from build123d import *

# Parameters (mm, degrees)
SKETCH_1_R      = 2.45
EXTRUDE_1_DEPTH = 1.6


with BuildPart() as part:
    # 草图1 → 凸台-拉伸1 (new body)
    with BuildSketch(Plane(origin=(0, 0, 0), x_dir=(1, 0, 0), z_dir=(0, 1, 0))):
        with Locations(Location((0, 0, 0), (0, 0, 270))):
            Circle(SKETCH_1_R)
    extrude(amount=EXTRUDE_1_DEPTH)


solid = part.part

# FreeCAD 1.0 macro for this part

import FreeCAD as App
import Part
import Sketcher
Q = App.Units.Quantity

doc = App.newDocument("Part")
params = doc.addObject("Spreadsheet::Sheet", "Params")
for row, (alias, value) in enumerate([
    ("sketch1_diameter", "4.9 mm"),
    ("pad1_length", "1.6 mm"),
], start=1):
    params.set(f"A{row}", alias)
    params.set(f"B{row}", "=" + value)
    params.setAlias(f"B{row}", alias)

body = doc.addObject("PartDesign::Body", "Body")

# Sketch on XZ plane
sketch1 = body.newObject("Sketcher::SketchObject", "Sketch")
sketch1.AttachmentSupport = (doc.getObject("XZ_Plane"), [""])
sketch1.MapMode = "FlatFace"
sketch1.addGeometry(Part.Circle(App.Vector(0, 0, 0), App.Vector(0, 0, 1), 2.5), False)
sketch1.addConstraint([
    Sketcher.Constraint("Coincident", 0, 3, -1, 1),
    Sketcher.Constraint("Diameter", 0, Q("4.9 mm")),
])
sketch1.setExpression("Constraints[1]", "Params.sketch1_diameter")
pad1 = body.newObject("PartDesign::Pad", "Pad")
pad1.Profile = sketch1
pad1.setExpression("Length", "Params.pad1_length")
pad1.Reversed = True

doc.recompute()
